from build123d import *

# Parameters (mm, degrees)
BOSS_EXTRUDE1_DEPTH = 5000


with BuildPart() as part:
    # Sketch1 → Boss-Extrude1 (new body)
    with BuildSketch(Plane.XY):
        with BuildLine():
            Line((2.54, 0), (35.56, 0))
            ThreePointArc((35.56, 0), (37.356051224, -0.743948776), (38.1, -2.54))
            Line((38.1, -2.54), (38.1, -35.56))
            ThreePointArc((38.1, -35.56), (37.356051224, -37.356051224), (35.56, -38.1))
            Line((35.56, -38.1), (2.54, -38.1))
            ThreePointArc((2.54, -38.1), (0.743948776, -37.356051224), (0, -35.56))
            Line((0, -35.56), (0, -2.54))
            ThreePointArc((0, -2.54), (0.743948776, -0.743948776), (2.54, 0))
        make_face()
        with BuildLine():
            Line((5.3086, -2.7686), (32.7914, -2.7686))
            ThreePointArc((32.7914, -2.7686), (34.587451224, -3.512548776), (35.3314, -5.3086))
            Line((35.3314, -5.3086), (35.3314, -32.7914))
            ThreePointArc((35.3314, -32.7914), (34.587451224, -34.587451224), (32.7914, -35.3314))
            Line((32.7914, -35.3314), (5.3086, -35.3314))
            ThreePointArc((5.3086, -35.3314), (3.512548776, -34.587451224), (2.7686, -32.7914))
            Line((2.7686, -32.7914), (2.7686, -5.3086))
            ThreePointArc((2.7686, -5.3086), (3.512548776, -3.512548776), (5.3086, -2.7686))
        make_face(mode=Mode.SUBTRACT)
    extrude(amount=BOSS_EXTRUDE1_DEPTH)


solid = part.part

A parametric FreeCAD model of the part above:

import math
import FreeCAD as App
import Part
import Sketcher

V = App.Vector
Q = App.Units.Quantity

doc = App.newDocument("Part")
body = doc.addObject("PartDesign::Body", "Body")

# Sketch on XY plane
sketch1 = doc.addObject("Sketcher::SketchObject", "Sketch")
body.addObject(sketch1)
sketch1.AttachmentSupport = (doc.XY_Plane, [""])
sketch1.MapMode = "FlatFace"
sketch1.addGeometry(Part.LineSegment(V(35.6, 0, 0), V(2.5, 0, 0)), False)
sketch1.addGeometry(Part.ArcOfCircle(Part.Circle(V(2.5, -2.5, 0), V(0, 0, 1), 2.5), math.radians(90), math.radians(180)), False)
sketch1.addGeometry(Part.LineSegment(V(0, -2.5, 0), V(0, -35.6, 0)), False)
sketch1.addGeometry(Part.ArcOfCircle(Part.Circle(V(2.5, -35.6, 0), V(0, 0, 1), 2.5), math.radians(-180), math.radians(-90)), False)
sketch1.addGeometry(Part.LineSegment(V(2.5, -38.1, 0), V(35.6, -38.1, 0)), False)
sketch1.addGeometry(Part.ArcOfCircle(Part.Circle(V(35.6, -35.6, 0), V(0, 0, 1), 2.5), math.radians(-90), math.radians(0)), False)
sketch1.addGeometry(Part.LineSegment(V(38.1, -35.6, 0), V(38.1, -2.5, 0)), False)
sketch1.addGeometry(Part.ArcOfCircle(Part.Circle(V(35.6, -2.5, 0), V(0, 0, 1), 2.5), math.radians(0), math.radians(90)), False)
sketch1.addGeometry(Part.LineSegment(V(5.3, -2.8, 0), V(32.8, -2.8, 0)), False)
sketch1.addGeometry(Part.ArcOfCircle(Part.Circle(V(32.8, -5.3, 0), V(0, 0, 1), 2.5), math.radians(0), math.radians(90)), False)
sketch1.addGeometry(Part.LineSegment(V(35.3, -5.3, 0), V(35.3, -32.8, 0)), False)
sketch1.addGeometry(Part.ArcOfCircle(Part.Circle(V(32.8, -32.8, 0), V(0, 0, 1), 2.5), math.radians(-90), math.radians(0)), False)
sketch1.addGeometry(Part.LineSegment(V(32.8, -35.3, 0), V(5.3, -35.3, 0)), False)
sketch1.addGeometry(Part.ArcOfCircle(Part.Circle(V(5.3, -32.8, 0), V(0, 0, 1), 2.5), math.radians(-180), math.radians(-90)), False)
sketch1.addGeometry(Part.LineSegment(V(2.8, -32.8, 0), V(2.8, -5.3, 0)), False)
sketch1.addGeometry(Part.ArcOfCircle(Part.Circle(V(5.3, -5.3, 0), V(0, 0, 1), 2.5), math.radians(90), math.radians(180)), False)
sketch1.addConstraint(Sketcher.Constraint("Tangent", 0, 2, 1, 1))
sketch1.addConstraint(Sketcher.Constraint("Tangent", 1, 2, 2, 1))
sketch1.addConstraint(Sketcher.Constraint("Tangent", 2, 2, 3, 1))
sketch1.addConstraint(Sketcher.Constraint("Tangent", 3, 2, 4, 1))
sketch1.addConstraint(Sketcher.Constraint("Tangent", 4, 2, 5, 1))
sketch1.addConstraint(Sketcher.Constraint("Tangent", 5, 2, 6, 1))
sketch1.addConstraint(Sketcher.Constraint("Tangent", 6, 2, 7, 1))
sketch1.addConstraint(Sketcher.Constraint("Tangent", 7, 2, 0, 1))
sketch1.addConstraint(Sketcher.Constraint("Tangent", 8, 2, 9, 2))
sketch1.addConstraint(Sketcher.Constraint("Tangent", 9, 1, 10, 1))
sketch1.addConstraint(Sketcher.Constraint("Tangent", 10, 2, 11, 2))
sketch1.addConstraint(Sketcher.Constraint("Tangent", 11, 1, 12, 1))
sketch1.addConstraint(Sketcher.Constraint("Tangent", 12, 2, 13, 2))
sketch1.addConstraint(Sketcher.Constraint("Tangent", 13, 1, 14, 1))
sketch1.addConstraint(Sketcher.Constraint("Tangent", 14, 2, 15, 2))
sketch1.addConstraint(Sketcher.Constraint("Tangent", 15, 1, 8, 1))
sketch1.addConstraint(Sketcher.Constraint("Horizontal", 0))
sketch1.addConstraint(Sketcher.Constraint("Vertical", 2))
sketch1.addConstraint(Sketcher.Constraint("Horizontal", 4))
sketch1.addConstraint(Sketcher.Constraint("Vertical", 6))
sketch1.addConstraint(Sketcher.Constraint("Horizontal", 8))
sketch1.addConstraint(Sketcher.Constraint("Vertical", 10))
sketch1.addConstraint(Sketcher.Constraint("Horizontal", 12))
sketch1.addConstraint(Sketcher.Constraint("Vertical", 14))
sketch1.addConstraint(Sketcher.Constraint("Equal", 1, 3))
sketch1.addConstraint(Sketcher.Constraint("Equal", 3, 5))
sketch1.addConstraint(Sketcher.Constraint("Equal", 5, 7))
sketch1.addConstraint(Sketcher.Constraint("Equal", 7, 9))
sketch1.addConstraint(Sketcher.Constraint("Equal", 9, 11))
sketch1.addConstraint(Sketcher.Constraint("Equal", 11, 13))
sketch1.addConstraint(Sketcher.Constraint("Equal", 13, 15))
sketch1.addConstraint(Sketcher.Constraint("PointOnObject", 0, 2, -1))
sketch1.addConstraint(Sketcher.Constraint("PointOnObject", 1, 2, -2))
sketch1.addConstraint(Sketcher.Constraint("Equal", 4, 2))
sketch1.addConstraint(Sketcher.Constraint("Equal", 12, 10))
sketch1.addConstraint(Sketcher.Constraint("Radius", 1, Q("0.1 in")))
sketch1.addConstraint(Sketcher.Constraint("DistanceX", 0, 2, 0, 1, Q("1.3 in")))
sketch1.addConstraint(Sketcher.Constraint("DistanceX", 8, 1, 8, 2, Q("1.082 in")))
sketch1.addConstraint(Sketcher.Constraint("DistanceX", -1, 1, 9, 3, Q("1.291 in")))
sketch1.addConstraint(Sketcher.Constraint("DistanceY", 9, 3, -1, 1, Q("0.209 in")))
pad1 = doc.addObject("PartDesign::Pad", "Pad")
body.addObject(pad1)
pad1.Profile = sketch1
pad1.Length = 5000

doc.recompute()
